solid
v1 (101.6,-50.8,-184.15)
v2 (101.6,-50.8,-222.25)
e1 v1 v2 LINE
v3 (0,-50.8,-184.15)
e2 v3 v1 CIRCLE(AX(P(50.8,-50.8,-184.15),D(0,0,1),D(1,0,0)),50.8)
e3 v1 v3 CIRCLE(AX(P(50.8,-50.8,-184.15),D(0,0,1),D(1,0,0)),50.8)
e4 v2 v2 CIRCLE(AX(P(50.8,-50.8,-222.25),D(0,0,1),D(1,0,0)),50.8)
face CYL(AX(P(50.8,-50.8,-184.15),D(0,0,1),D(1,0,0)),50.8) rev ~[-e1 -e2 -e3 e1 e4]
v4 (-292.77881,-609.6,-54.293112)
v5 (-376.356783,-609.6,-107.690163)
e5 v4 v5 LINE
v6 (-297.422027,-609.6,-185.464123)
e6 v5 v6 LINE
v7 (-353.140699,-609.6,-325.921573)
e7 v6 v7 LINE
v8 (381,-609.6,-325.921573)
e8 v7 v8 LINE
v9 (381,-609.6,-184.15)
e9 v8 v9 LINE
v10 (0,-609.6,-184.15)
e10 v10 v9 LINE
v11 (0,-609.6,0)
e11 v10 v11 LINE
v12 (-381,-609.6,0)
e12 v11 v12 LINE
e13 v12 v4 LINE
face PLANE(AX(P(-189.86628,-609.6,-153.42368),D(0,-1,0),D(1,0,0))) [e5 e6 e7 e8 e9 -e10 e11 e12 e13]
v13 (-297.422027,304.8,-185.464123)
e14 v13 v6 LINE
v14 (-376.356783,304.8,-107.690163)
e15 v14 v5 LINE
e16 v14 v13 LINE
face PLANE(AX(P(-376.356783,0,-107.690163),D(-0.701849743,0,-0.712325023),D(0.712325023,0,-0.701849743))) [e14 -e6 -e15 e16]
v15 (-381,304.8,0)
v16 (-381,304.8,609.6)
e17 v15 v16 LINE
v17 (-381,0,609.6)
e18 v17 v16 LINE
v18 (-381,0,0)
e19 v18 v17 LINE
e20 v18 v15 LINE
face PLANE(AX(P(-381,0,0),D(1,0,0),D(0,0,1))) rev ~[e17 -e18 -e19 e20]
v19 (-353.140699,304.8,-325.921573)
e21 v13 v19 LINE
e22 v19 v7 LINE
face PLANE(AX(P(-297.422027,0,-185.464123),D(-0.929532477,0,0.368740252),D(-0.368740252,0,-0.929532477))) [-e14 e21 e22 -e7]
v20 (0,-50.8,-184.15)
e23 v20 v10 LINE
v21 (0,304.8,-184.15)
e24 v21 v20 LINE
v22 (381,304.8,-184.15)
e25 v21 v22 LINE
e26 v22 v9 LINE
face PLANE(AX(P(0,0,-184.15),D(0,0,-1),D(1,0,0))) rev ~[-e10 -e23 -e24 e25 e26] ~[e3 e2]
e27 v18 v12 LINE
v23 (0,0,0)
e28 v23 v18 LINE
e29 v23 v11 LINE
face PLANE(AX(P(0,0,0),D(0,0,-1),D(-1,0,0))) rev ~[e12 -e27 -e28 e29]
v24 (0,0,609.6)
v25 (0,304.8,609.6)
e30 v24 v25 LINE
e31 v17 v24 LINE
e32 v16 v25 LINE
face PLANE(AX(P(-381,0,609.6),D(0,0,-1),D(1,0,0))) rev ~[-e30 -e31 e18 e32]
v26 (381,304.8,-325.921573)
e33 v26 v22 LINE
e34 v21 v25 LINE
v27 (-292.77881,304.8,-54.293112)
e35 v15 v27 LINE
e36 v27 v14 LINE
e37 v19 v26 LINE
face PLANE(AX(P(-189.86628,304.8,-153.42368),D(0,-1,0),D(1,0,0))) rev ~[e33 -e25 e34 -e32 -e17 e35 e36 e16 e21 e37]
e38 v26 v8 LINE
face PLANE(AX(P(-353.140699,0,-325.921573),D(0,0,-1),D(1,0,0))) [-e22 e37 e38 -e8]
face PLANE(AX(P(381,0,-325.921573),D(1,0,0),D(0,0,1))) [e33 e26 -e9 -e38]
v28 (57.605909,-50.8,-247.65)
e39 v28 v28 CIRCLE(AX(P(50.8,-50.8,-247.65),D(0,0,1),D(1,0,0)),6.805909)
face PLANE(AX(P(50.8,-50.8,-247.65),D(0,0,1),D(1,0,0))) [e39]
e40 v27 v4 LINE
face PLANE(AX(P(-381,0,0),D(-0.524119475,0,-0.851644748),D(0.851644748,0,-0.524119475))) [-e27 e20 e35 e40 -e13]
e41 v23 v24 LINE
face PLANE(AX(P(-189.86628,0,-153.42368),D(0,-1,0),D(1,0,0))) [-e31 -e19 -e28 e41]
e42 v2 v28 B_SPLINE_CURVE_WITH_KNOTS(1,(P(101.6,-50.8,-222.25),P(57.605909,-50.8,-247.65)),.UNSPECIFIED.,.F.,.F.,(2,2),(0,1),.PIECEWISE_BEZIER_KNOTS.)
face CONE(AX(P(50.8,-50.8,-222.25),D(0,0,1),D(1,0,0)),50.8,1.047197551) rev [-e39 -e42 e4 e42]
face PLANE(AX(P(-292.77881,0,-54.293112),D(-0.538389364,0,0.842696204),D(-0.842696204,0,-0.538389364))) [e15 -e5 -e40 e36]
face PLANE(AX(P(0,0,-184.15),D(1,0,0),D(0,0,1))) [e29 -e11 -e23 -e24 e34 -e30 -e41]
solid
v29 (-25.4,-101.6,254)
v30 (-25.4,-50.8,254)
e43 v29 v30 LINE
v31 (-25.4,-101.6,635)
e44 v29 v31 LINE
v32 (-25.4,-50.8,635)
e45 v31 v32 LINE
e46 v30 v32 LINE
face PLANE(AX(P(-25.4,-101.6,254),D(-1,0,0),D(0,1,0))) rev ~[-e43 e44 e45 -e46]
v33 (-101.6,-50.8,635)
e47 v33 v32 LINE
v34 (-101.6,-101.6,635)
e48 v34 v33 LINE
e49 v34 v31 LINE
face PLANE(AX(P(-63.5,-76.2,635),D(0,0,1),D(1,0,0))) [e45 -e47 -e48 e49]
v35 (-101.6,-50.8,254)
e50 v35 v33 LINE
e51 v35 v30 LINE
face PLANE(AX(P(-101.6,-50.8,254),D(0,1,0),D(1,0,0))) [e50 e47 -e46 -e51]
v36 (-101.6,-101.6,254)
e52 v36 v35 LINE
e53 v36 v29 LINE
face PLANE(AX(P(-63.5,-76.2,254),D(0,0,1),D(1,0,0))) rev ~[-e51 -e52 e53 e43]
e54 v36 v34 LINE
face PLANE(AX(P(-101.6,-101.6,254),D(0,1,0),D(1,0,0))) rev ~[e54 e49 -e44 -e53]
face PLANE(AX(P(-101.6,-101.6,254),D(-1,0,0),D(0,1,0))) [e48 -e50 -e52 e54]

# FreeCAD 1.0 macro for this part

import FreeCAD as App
import Part
import Sketcher

V = App.Vector
Q = App.Units.Quantity

doc = App.newDocument("Part")
body = doc.addObject("PartDesign::Body", "Body")

# Sketch on XZ plane
sketch1 = body.newObject("Sketcher::SketchObject", "Sketch")
sketch1.AttachmentSupport = (doc.getObject("XZ_Plane"), [""])
sketch1.MapMode = "FlatFace"
sketch1.addGeometry([
    Part.LineSegment(V(0, 0, 0), V(-381, 0, 0)),  # 0
    Part.LineSegment(V(-381, 0, 0), V(-293, -54, 0)),  # 1
    Part.LineSegment(V(-293, -54, 0), V(-376, -108, 0)),  # 2
    Part.LineSegment(V(-376, -108, 0), V(-297, -185, 0)),  # 3
    Part.LineSegment(V(-297, -185, 0), V(-353, -326, 0)),  # 4
    Part.LineSegment(V(-353, -326, 0), V(381, -326, 0)),  # 5
    Part.LineSegment(V(381, -326, 0), V(381, -184, 0)),  # 6
    Part.LineSegment(V(381, -184, 0), V(0, -184, 0)),  # 7
    Part.LineSegment(V(0, -184, 0), V(0, 0, 0)),  # 8
], False)
sketch1.addConstraint([
    Sketcher.Constraint("Coincident", 0, 2, 1, 1),
    Sketcher.Constraint("Coincident", 1, 2, 2, 1),
    Sketcher.Constraint("Coincident", 2, 2, 3, 1),
    Sketcher.Constraint("Coincident", 3, 2, 4, 1),
    Sketcher.Constraint("Coincident", 4, 2, 5, 1),
    Sketcher.Constraint("Coincident", 5, 2, 6, 1),
    Sketcher.Constraint("Coincident", 6, 2, 7, 1),
    Sketcher.Constraint("Coincident", 7, 2, 8, 1),
    Sketcher.Constraint("Coincident", 8, 2, 0, 1),
    Sketcher.Constraint("Horizontal", 0),
    Sketcher.Constraint("Horizontal", 5),
    Sketcher.Constraint("Vertical", 6),
    Sketcher.Constraint("Horizontal", 7),
    Sketcher.Constraint("Vertical", 8),
    Sketcher.Constraint("Coincident", 8, 2, -1, 1),
    Sketcher.Constraint("Equal", 0, 7),
    Sketcher.Constraint("DistanceX", 0, 2, 0, 1, Q("15 in")),
    Sketcher.Constraint("DistanceY", 8, 1, 8, 2, Q("7.25 in")),
    Sketcher.Constraint("DistanceX", 5, 1, 5, 2, Q("734.140699 mm")),
    Sketcher.Constraint("Distance", 1, Q("103.58919 mm")),
    Sketcher.Constraint("DistanceY", 6, 1, 6, 2, Q("141.771573 mm")),
    Sketcher.Constraint("DistanceX", 1, 2, -1, 1, Q("292.77881 mm")),
    Sketcher.Constraint("DistanceY", 2, 2, 1, 2, Q("53.39705 mm")),
    Sketcher.Constraint("DistanceY", 3, 2, 2, 2, Q("77.773961 mm")),
    Sketcher.Constraint("Distance", 2, Q("99.179245 mm")),
    Sketcher.Constraint("Distance", 3, Q("110.812836 mm")),
])
pad1 = body.newObject("PartDesign::Pad", "Pad")
pad1.Profile = sketch1
pad1.Length = Q("24 in")

# Sketch on XZ plane
sketch2 = body.newObject("Sketcher::SketchObject", "Sketch001")
sketch2.AttachmentSupport = (doc.getObject("XZ_Plane"), [""])
sketch2.MapMode = "FlatFace"
sketch2.addGeometry([
    Part.LineSegment(V(-381, 0, 0), V(-293, -54, 0)),  # 0
    Part.LineSegment(V(-293, -54, 0), V(-376, -108, 0)),  # 1
    Part.LineSegment(V(-376, -108, 0), V(-297, -185, 0)),  # 2
    Part.LineSegment(V(-297, -185, 0), V(-353, -326, 0)),  # 3
    Part.LineSegment(V(-353, -326, 0), V(381, -326, 0)),  # 4
    Part.LineSegment(V(381, -326, 0), V(381, -184, 0)),  # 5
    Part.LineSegment(V(381, -184, 0), V(0, -184, 0)),  # 6
    Part.LineSegment(V(0, -184, 0), V(0, 610, 0)),  # 7
    Part.LineSegment(V(0, 610, 0), V(-381, 610, 0)),  # 8
    Part.LineSegment(V(-381, 610, 0), V(-381, 0, 0)),  # 9
], False)
sketch2.addConstraint([
    Sketcher.Constraint("Coincident", 0, 2, 1, 1),
    Sketcher.Constraint("Coincident", 1, 2, 2, 1),
    Sketcher.Constraint("Coincident", 2, 2, 3, 1),
    Sketcher.Constraint("Coincident", 3, 2, 4, 1),
    Sketcher.Constraint("Coincident", 4, 2, 5, 1),
    Sketcher.Constraint("Coincident", 5, 2, 6, 1),
    Sketcher.Constraint("Coincident", 6, 2, 7, 1),
    Sketcher.Constraint("Coincident", 7, 2, 8, 1),
    Sketcher.Constraint("Coincident", 8, 2, 9, 1),
    Sketcher.Constraint("Coincident", 9, 2, 0, 1),
    Sketcher.Constraint("Horizontal", 4),
    Sketcher.Constraint("Vertical", 5),
    Sketcher.Constraint("Horizontal", 6),
    Sketcher.Constraint("Vertical", 7),
    Sketcher.Constraint("Horizontal", 8),
    Sketcher.Constraint("Vertical", 9),
    Sketcher.Constraint("PointOnObject", 6, 2, -2),
    Sketcher.Constraint("PointOnObject", 9, 2, -1),
    Sketcher.Constraint("Equal", 6, 8),
    Sketcher.Constraint("DistanceX", 6, 2, 6, 1, Q("15 in")),
    Sketcher.Constraint("DistanceY", 9, 2, 9, 1, Q("24 in")),
    Sketcher.Constraint("DistanceY", 7, 1, 7, 2, Q("31.25 in")),
    Sketcher.Constraint("DistanceX", 4, 1, 4, 2, Q("734.140699 mm")),
    Sketcher.Constraint("Distance", 0, Q("103.58919 mm")),
    Sketcher.Constraint("DistanceY", 5, 1, 5, 2, Q("141.771573 mm")),
    Sketcher.Constraint("DistanceX", 0, 2, -1, 1, Q("292.77881 mm")),
    Sketcher.Constraint("DistanceY", 1, 2, 0, 2, Q("53.39705 mm")),
    Sketcher.Constraint("DistanceY", 2, 2, 1, 2, Q("77.773961 mm")),
    Sketcher.Constraint("Distance", 1, Q("99.179245 mm")),
    Sketcher.Constraint("Distance", 2, Q("110.812836 mm")),
])
pad2 = body.newObject("PartDesign::Pad", "Pad001")
pad2.Profile = sketch2
pad2.Length = Q("12 in")
pad2.Reversed = True

# Sketch on XY plane
sketch3 = body.newObject("Sketcher::SketchObject", "Sketch002")
sketch3.AttachmentSupport = (doc.getObject("XY_Plane"), [""])
sketch3.MapMode = "FlatFace"
sketch3.AttachmentOffset = App.Placement(V(0, 0, -7.25 * 25.4), App.Rotation())
sketch3.addGeometry(Part.Circle(V(51, -51, 0), V(0, 0, 1), 51), False)
sketch3.addConstraint([
    Sketcher.Constraint("Diameter", 0, Q("4 in")),
    Sketcher.Constraint("DistanceX", -1, 1, 0, 3, Q("2 in")),
    Sketcher.Constraint("DistanceY", 0, 3, -1, 1, Q("2 in")),
])
pocket1 = body.newObject("PartDesign::Pocket", "Pocket")
pocket1.Profile = sketch3
pocket1.Length = Q("1.5 in")

# Sketch on XY plane
sketch4 = body.newObject("Sketcher::SketchObject", "Sketch003")
sketch4.AttachmentSupport = (doc.getObject("XY_Plane"), [""])
sketch4.MapMode = "FlatFace"
sketch4.AttachmentOffset = App.Placement(V(0, 0, -8.75 * 25.4), App.Rotation())
sketch4.addGeometry(Part.Circle(V(51, -51, 0), V(0, 0, 1), 51), False)
sketch4.addConstraint([
    Sketcher.Constraint("Diameter", 0, Q("4 in")),
    Sketcher.Constraint("DistanceX", -1, 1, 0, 3, Q("2 in")),
    Sketcher.Constraint("DistanceY", 0, 3, -1, 1, Q("2 in")),
])
pocket2 = body.newObject("PartDesign::Pocket", "Pocket001")
pocket2.Profile = sketch4
pocket2.Length = Q("1 in")
pocket2.TaperAngle = -60
body2 = doc.addObject("PartDesign::Body", "Body001")

# Sketch on XY plane
sketch5 = body2.newObject("Sketcher::SketchObject", "Sketch004")
sketch5.AttachmentSupport = (doc.getObject("XY_Plane001"), [""])
sketch5.MapMode = "FlatFace"
sketch5.AttachmentOffset = App.Placement(V(0, 0, 10 * 25.4), App.Rotation())
sketch5.addGeometry([
    Part.LineSegment(V(-102, -51, 0), V(-102, -102, 0)),
    Part.LineSegment(V(-102, -102, 0), V(-25, -102, 0)),
    Part.LineSegment(V(-25, -102, 0), V(-25, -51, 0)),
    Part.LineSegment(V(-25, -51, 0), V(-102, -51, 0)),
], False)
sketch5.addConstraint([
    Sketcher.Constraint("Coincident", 0, 2, 1, 1),
    Sketcher.Constraint("Coincident", 1, 2, 2, 1),
    Sketcher.Constraint("Coincident", 2, 2, 3, 1),
    Sketcher.Constraint("Coincident", 3, 2, 0, 1),
    Sketcher.Constraint("Vertical", 0),
    Sketcher.Constraint("Horizontal", 1),
    Sketcher.Constraint("Vertical", 2),
    Sketcher.Constraint("Horizontal", 3),
    Sketcher.Constraint("DistanceX", 1, 1, 1, 2, Q("3 in")),
    Sketcher.Constraint("DistanceY", 0, 2, 0, 1, Q("2 in")),
    Sketcher.Constraint("DistanceX", 0, 2, -1, 1, Q("4 in")),
    Sketcher.Constraint("DistanceY", 0, 2, -1, 1, Q("4 in")),
])
pad3 = body2.newObject("PartDesign::Pad", "Pad002")
pad3.Profile = sketch5
pad3.Length = Q("15 in")

doc.recompute()
